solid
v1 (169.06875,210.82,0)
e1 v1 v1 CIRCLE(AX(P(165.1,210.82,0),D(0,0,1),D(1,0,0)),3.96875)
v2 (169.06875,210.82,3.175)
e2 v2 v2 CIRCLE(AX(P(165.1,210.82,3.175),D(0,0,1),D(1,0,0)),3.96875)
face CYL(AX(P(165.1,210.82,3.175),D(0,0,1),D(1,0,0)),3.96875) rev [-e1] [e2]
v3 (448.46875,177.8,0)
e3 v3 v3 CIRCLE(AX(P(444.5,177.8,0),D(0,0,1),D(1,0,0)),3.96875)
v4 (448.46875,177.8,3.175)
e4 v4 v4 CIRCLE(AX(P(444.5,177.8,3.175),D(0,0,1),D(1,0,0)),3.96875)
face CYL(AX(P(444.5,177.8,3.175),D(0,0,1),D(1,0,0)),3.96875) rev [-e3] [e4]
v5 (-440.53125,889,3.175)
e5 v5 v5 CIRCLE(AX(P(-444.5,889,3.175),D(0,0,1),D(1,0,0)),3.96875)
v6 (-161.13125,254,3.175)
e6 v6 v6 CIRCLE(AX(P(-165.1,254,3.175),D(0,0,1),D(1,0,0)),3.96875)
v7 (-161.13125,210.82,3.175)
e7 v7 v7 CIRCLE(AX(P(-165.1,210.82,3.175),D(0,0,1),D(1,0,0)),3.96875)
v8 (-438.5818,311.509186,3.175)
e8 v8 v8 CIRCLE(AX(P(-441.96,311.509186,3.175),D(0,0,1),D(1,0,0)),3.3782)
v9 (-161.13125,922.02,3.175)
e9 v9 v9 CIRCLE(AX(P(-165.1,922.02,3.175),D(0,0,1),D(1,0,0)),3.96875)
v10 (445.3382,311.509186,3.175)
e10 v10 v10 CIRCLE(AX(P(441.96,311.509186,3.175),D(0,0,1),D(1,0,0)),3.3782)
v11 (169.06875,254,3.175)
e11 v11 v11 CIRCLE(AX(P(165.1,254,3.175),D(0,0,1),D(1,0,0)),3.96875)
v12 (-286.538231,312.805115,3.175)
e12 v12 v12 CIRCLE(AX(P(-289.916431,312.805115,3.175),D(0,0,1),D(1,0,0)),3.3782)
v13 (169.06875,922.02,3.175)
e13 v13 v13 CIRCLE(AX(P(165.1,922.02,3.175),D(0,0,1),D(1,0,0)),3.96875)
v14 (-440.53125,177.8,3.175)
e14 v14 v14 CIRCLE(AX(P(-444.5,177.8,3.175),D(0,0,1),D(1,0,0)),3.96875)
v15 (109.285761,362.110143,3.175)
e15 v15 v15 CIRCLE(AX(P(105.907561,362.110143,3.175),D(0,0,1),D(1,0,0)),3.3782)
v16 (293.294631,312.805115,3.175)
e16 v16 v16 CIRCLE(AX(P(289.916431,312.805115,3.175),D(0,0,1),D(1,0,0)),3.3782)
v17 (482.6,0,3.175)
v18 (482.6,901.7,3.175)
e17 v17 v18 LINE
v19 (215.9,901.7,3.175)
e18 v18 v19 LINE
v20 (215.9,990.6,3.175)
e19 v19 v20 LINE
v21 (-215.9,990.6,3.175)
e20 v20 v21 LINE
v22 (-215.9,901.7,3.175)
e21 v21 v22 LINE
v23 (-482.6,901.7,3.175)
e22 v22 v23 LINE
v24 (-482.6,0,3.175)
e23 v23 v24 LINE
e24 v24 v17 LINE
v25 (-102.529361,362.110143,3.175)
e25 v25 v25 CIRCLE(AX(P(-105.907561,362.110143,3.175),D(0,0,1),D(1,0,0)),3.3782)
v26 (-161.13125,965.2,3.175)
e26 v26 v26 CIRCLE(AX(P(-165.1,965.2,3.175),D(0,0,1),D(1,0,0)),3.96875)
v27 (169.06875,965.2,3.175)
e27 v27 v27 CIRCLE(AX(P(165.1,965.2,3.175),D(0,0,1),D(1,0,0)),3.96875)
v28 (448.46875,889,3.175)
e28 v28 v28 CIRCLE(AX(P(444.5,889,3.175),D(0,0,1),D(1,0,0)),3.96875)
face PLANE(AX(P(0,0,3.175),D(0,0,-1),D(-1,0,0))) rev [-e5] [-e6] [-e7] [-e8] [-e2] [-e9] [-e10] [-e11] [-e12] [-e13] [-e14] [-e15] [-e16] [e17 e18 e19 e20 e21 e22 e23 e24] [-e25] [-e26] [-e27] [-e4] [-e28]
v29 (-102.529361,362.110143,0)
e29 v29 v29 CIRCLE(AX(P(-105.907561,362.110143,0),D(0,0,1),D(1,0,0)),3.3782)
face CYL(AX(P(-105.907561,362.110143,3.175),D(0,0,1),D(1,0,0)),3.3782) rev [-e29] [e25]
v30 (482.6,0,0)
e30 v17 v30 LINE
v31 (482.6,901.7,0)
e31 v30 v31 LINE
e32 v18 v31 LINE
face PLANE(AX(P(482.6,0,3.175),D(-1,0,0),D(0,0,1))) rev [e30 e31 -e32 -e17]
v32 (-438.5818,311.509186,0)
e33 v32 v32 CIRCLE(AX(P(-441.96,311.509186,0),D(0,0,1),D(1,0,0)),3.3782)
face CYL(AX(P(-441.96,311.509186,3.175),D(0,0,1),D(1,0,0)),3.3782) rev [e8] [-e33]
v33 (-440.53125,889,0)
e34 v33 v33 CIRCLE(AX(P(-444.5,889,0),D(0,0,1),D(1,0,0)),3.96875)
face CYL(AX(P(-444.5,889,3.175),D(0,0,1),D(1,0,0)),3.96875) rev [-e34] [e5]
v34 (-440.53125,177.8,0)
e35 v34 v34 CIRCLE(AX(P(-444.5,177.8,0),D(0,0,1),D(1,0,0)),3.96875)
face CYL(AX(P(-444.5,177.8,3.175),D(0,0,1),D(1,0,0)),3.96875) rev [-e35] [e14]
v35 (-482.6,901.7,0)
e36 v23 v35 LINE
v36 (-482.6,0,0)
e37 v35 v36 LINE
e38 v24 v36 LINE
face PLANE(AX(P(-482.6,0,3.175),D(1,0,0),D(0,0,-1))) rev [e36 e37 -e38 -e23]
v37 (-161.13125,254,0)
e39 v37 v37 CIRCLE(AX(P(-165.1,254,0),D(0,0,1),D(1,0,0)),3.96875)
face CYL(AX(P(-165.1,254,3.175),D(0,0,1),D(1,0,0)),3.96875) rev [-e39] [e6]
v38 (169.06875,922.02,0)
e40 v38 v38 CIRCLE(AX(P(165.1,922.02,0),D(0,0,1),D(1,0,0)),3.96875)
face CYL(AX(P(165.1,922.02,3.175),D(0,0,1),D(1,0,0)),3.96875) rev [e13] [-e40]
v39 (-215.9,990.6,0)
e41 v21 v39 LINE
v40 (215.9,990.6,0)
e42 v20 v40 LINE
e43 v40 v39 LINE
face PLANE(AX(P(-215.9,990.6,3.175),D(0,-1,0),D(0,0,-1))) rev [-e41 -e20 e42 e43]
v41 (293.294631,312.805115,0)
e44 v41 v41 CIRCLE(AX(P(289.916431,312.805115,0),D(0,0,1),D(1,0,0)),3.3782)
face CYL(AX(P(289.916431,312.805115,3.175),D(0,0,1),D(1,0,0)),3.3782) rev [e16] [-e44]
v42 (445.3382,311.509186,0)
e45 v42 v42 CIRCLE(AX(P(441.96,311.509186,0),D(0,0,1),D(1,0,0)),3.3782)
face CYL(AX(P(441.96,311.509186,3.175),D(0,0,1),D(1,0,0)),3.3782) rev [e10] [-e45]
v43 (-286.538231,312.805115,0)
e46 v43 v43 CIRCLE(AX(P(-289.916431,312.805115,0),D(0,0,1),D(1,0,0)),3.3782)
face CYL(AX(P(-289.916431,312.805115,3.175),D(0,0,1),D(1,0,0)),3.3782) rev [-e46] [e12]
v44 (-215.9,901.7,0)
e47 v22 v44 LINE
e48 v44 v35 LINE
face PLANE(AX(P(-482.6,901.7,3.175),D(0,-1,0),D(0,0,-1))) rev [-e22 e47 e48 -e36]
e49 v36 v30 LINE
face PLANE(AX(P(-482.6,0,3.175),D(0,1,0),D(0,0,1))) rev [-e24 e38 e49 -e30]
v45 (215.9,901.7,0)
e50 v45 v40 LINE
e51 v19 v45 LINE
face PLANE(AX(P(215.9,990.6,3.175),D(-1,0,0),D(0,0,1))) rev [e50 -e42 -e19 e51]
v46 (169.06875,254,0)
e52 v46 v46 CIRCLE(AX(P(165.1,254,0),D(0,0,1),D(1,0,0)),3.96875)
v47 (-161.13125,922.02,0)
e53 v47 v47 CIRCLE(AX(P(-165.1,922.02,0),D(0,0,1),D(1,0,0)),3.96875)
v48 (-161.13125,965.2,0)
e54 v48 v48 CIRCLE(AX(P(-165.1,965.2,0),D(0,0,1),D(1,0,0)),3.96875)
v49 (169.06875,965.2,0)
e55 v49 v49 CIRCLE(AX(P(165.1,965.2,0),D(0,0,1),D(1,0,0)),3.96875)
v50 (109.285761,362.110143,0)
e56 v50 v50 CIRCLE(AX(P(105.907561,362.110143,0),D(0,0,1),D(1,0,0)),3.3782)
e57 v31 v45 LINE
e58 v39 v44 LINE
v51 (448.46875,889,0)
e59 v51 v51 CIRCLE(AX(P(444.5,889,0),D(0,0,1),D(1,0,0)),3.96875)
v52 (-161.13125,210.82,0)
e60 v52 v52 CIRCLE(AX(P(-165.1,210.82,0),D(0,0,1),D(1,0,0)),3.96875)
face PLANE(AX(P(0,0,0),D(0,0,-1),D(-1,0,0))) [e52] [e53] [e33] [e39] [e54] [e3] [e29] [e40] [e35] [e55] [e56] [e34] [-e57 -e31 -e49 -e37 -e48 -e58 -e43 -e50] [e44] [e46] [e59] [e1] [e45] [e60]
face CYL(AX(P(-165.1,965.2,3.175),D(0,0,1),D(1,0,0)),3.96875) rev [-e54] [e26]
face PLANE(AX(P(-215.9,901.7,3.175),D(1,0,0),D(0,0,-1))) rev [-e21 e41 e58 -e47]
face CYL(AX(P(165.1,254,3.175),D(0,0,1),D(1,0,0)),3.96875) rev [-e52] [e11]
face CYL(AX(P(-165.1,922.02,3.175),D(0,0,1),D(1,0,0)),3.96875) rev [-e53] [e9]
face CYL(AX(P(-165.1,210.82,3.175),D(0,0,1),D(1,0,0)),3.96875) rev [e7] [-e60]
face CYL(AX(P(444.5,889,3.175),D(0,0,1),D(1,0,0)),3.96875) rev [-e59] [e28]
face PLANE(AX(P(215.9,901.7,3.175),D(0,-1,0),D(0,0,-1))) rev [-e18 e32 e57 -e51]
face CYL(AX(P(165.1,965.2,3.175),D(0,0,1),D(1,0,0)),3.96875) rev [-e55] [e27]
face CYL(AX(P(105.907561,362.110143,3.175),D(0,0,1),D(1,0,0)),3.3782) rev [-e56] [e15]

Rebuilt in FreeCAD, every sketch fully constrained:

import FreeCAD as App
import Part
import Sketcher
Q = App.Units.Quantity


def add_polygon(sketch, points):
    """Adds a closed chain of lines whose ends are joined by coincident constraints."""
    first, n = sketch.GeometryCount, len(points)
    for a, b in zip(points, points[1:] + points[:1]):
        sketch.addGeometry(Part.LineSegment(App.Vector(*a, 0), App.Vector(*b, 0)), False)
    for i in range(n):
        sketch.addConstraint(Sketcher.Constraint("Coincident", first + i, 2, first + (i + 1) % n, 1))

doc = App.newDocument("Part")
body = doc.addObject("PartDesign::Body", "Body")

# Sketch on XY plane
sketch1 = body.newObject("Sketcher::SketchObject", "Sketch")
sketch1.AttachmentSupport = (doc.getObject("XY_Plane"), [""])
sketch1.MapMode = "FlatFace"
add_polygon(sketch1, [(-216, 902), (-483, 902), (-483, 0), (483, 0), (483, 902), (216, 902), (216, 991), (-216, 991)])  # lines 0-7
sketch1.addConstraint([
    Sketcher.Constraint("Horizontal", 0),
    Sketcher.Constraint("Vertical", 1),
    Sketcher.Constraint("Horizontal", 2),
    Sketcher.Constraint("Vertical", 3),
    Sketcher.Constraint("Horizontal", 4),
    Sketcher.Constraint("Vertical", 5),
    Sketcher.Constraint("Horizontal", 6),
    Sketcher.Constraint("Vertical", 7),
    Sketcher.Constraint("Symmetric", 1, 2, 2, 2, -1, 1),
    Sketcher.Constraint("Symmetric", 4, 2, 7, 2, -2),
    Sketcher.Constraint("DistanceX", 2, 1, 2, 2, Q("38 in")),
    Sketcher.Constraint("DistanceX", 6, 2, 6, 1, Q("17 in")),
    Sketcher.Constraint("DistanceY", 1, 2, 1, 1, Q("35.5 in")),
    Sketcher.Constraint("DistanceY", 5, 1, 5, 2, Q("3.5 in")),
])
pad1 = body.newObject("PartDesign::Pad", "Pad")
pad1.Profile = sketch1
pad1.Length = Q("0.125 in")

# Sketch on XY plane
sketch2 = body.newObject("Sketcher::SketchObject", "Sketch001")
sketch2.AttachmentSupport = (doc.getObject("XY_Plane"), [""])
sketch2.MapMode = "FlatFace"
sketch2.AttachmentOffset = App.Placement(App.Vector(0, 0, 0.125 * 25.4), App.Rotation())
sketch2.addGeometry([
    Part.Circle(App.Vector(-442, 311.5, 0), App.Vector(0, 0, 1), 3.4),  # 0
    Part.Circle(App.Vector(105.9, 362.1, 0), App.Vector(0, 0, 1), 3.4),  # 1
    Part.Circle(App.Vector(289.9, 312.8, 0), App.Vector(0, 0, 1), 3.4),  # 2
    Part.Circle(App.Vector(-289.9, 312.8, 0), App.Vector(0, 0, 1), 3.4),  # 3
    Part.Circle(App.Vector(-105.9, 362.1, 0), App.Vector(0, 0, 1), 3.4),  # 4
    Part.Circle(App.Vector(442, 311.5, 0), App.Vector(0, 0, 1), 3.4),  # 5
], False)
sketch2.addConstraint([
    Sketcher.Constraint("Equal", 0, 1),
    Sketcher.Constraint("Equal", 1, 2),
    Sketcher.Constraint("Equal", 2, 3),
    Sketcher.Constraint("Equal", 3, 4),
    Sketcher.Constraint("Equal", 4, 5),
    Sketcher.Constraint("Symmetric", 2, 3, 3, 3, -2),
    Sketcher.Constraint("Symmetric", 1, 3, 4, 3, -2),
    Sketcher.Constraint("Symmetric", 0, 3, 5, 3, -2),
    Sketcher.Constraint("Diameter", 0, Q("0.266 in")),
    Sketcher.Constraint("DistanceX", 0, 3, -1, 1, Q("17.4 in")),
    Sketcher.Constraint("DistanceX", -1, 1, 1, 3, 105.907561),
    Sketcher.Constraint("DistanceX", -1, 1, 2, 3, 289.916431),
    Sketcher.Constraint("DistanceY", 2, 3, 1, 3, 49.305028),
    Sketcher.Constraint("DistanceY", 0, 3, 2, 3, 1.295929),
    Sketcher.Constraint("DistanceY", -1, 1, 0, 3, 311.509186),
])
doc.recompute()
hole = body.newObject("PartDesign::Hole", "Hole")
hole.Profile = sketch2
hole.ThreadType = "None"
hole.Diameter = Q("0.266 in")
hole.DepthType = "ThroughAll"

# Sketch on XY plane
sketch3 = body.newObject("Sketcher::SketchObject", "Sketch002")
sketch3.AttachmentSupport = (doc.getObject("XY_Plane"), [""])
sketch3.MapMode = "FlatFace"
sketch3.AttachmentOffset = App.Placement(App.Vector(0, 0, 0.125 * 25.4), App.Rotation())
sketch3.addGeometry([
    Part.Circle(App.Vector(-165.1, 922, 0), App.Vector(0, 0, 1), 4),  # 0
    Part.Circle(App.Vector(-165.1, 965.2, 0), App.Vector(0, 0, 1), 4),  # 1
    Part.Circle(App.Vector(165.1, 965.2, 0), App.Vector(0, 0, 1), 4),  # 2
    Part.Circle(App.Vector(165.1, 922, 0), App.Vector(0, 0, 1), 4),  # 3
    Part.Circle(App.Vector(-165.1, 210.8, 0), App.Vector(0, 0, 1), 4),  # 4
    Part.Circle(App.Vector(-165.1, 254, 0), App.Vector(0, 0, 1), 4),  # 5
    Part.Circle(App.Vector(165.1, 254, 0), App.Vector(0, 0, 1), 4),  # 6
    Part.Circle(App.Vector(165.1, 210.8, 0), App.Vector(0, 0, 1), 4),  # 7
    Part.Circle(App.Vector(-444.5, 177.8, 0), App.Vector(0, 0, 1), 4),  # 8
    Part.Circle(App.Vector(444.5, 177.8, 0), App.Vector(0, 0, 1), 4),  # 9
    Part.Circle(App.Vector(-444.5, 889, 0), App.Vector(0, 0, 1), 4),  # 10
    Part.Circle(App.Vector(444.5, 889, 0), App.Vector(0, 0, 1), 4),  # 11
], False)
sketch3.addConstraint([
    Sketcher.Constraint("Equal", 0, 1),
    Sketcher.Constraint("Equal", 1, 2),
    Sketcher.Constraint("Equal", 2, 3),
    Sketcher.Constraint("Equal", 3, 4),
    Sketcher.Constraint("Equal", 4, 5),
    Sketcher.Constraint("Equal", 5, 6),
    Sketcher.Constraint("Equal", 6, 7),
    Sketcher.Constraint("Equal", 7, 8),
    Sketcher.Constraint("Equal", 8, 9),
    Sketcher.Constraint("Equal", 9, 10),
    Sketcher.Constraint("Equal", 10, 11),
    Sketcher.Constraint("Symmetric", 1, 3, 2, 3, -2),
    Sketcher.Constraint("Symmetric", 0, 3, 3, 3, -2),
    Sketcher.Constraint("Symmetric", 5, 3, 6, 3, -2),
    Sketcher.Constraint("Symmetric", 4, 3, 7, 3, -2),
    Sketcher.Constraint("Symmetric", 8, 3, 9, 3, -2),
    Sketcher.Constraint("Symmetric", 10, 3, 11, 3, -2),
    Sketcher.Constraint("Vertical", 0, 3, 1, 3),
    Sketcher.Constraint("Vertical", 1, 3, 4, 3),
    Sketcher.Constraint("Vertical", 4, 3, 5, 3),
    Sketcher.Constraint("Vertical", 8, 3, 10, 3),
    Sketcher.Constraint("Diameter", 0, Q("0.3125 in")),
    Sketcher.Constraint("DistanceY", -1, 1, 1, 3, Q("38 in")),
    Sketcher.Constraint("DistanceY", -1, 1, 5, 3, Q("10 in")),
    Sketcher.Constraint("DistanceY", -1, 1, 8, 3, Q("7 in")),
    Sketcher.Constraint("DistanceY", -1, 1, 10, 3, Q("35 in")),
    Sketcher.Constraint("DistanceX", 1, 3, 2, 3, Q("13 in")),
    Sketcher.Constraint("DistanceY", 4, 3, 0, 3, Q("28 in")),
    Sketcher.Constraint("DistanceX", 8, 3, 4, 3, Q("11 in")),
    Sketcher.Constraint("DistanceY", -1, 1, 0, 3, Q("36.3 in")),
])
doc.recompute()
hole2 = body.newObject("PartDesign::Hole", "Hole001")
hole2.Profile = sketch3
hole2.ThreadType = "None"
hole2.Diameter = Q("0.3125 in")
hole2.DepthType = "ThroughAll"

doc.recompute()
